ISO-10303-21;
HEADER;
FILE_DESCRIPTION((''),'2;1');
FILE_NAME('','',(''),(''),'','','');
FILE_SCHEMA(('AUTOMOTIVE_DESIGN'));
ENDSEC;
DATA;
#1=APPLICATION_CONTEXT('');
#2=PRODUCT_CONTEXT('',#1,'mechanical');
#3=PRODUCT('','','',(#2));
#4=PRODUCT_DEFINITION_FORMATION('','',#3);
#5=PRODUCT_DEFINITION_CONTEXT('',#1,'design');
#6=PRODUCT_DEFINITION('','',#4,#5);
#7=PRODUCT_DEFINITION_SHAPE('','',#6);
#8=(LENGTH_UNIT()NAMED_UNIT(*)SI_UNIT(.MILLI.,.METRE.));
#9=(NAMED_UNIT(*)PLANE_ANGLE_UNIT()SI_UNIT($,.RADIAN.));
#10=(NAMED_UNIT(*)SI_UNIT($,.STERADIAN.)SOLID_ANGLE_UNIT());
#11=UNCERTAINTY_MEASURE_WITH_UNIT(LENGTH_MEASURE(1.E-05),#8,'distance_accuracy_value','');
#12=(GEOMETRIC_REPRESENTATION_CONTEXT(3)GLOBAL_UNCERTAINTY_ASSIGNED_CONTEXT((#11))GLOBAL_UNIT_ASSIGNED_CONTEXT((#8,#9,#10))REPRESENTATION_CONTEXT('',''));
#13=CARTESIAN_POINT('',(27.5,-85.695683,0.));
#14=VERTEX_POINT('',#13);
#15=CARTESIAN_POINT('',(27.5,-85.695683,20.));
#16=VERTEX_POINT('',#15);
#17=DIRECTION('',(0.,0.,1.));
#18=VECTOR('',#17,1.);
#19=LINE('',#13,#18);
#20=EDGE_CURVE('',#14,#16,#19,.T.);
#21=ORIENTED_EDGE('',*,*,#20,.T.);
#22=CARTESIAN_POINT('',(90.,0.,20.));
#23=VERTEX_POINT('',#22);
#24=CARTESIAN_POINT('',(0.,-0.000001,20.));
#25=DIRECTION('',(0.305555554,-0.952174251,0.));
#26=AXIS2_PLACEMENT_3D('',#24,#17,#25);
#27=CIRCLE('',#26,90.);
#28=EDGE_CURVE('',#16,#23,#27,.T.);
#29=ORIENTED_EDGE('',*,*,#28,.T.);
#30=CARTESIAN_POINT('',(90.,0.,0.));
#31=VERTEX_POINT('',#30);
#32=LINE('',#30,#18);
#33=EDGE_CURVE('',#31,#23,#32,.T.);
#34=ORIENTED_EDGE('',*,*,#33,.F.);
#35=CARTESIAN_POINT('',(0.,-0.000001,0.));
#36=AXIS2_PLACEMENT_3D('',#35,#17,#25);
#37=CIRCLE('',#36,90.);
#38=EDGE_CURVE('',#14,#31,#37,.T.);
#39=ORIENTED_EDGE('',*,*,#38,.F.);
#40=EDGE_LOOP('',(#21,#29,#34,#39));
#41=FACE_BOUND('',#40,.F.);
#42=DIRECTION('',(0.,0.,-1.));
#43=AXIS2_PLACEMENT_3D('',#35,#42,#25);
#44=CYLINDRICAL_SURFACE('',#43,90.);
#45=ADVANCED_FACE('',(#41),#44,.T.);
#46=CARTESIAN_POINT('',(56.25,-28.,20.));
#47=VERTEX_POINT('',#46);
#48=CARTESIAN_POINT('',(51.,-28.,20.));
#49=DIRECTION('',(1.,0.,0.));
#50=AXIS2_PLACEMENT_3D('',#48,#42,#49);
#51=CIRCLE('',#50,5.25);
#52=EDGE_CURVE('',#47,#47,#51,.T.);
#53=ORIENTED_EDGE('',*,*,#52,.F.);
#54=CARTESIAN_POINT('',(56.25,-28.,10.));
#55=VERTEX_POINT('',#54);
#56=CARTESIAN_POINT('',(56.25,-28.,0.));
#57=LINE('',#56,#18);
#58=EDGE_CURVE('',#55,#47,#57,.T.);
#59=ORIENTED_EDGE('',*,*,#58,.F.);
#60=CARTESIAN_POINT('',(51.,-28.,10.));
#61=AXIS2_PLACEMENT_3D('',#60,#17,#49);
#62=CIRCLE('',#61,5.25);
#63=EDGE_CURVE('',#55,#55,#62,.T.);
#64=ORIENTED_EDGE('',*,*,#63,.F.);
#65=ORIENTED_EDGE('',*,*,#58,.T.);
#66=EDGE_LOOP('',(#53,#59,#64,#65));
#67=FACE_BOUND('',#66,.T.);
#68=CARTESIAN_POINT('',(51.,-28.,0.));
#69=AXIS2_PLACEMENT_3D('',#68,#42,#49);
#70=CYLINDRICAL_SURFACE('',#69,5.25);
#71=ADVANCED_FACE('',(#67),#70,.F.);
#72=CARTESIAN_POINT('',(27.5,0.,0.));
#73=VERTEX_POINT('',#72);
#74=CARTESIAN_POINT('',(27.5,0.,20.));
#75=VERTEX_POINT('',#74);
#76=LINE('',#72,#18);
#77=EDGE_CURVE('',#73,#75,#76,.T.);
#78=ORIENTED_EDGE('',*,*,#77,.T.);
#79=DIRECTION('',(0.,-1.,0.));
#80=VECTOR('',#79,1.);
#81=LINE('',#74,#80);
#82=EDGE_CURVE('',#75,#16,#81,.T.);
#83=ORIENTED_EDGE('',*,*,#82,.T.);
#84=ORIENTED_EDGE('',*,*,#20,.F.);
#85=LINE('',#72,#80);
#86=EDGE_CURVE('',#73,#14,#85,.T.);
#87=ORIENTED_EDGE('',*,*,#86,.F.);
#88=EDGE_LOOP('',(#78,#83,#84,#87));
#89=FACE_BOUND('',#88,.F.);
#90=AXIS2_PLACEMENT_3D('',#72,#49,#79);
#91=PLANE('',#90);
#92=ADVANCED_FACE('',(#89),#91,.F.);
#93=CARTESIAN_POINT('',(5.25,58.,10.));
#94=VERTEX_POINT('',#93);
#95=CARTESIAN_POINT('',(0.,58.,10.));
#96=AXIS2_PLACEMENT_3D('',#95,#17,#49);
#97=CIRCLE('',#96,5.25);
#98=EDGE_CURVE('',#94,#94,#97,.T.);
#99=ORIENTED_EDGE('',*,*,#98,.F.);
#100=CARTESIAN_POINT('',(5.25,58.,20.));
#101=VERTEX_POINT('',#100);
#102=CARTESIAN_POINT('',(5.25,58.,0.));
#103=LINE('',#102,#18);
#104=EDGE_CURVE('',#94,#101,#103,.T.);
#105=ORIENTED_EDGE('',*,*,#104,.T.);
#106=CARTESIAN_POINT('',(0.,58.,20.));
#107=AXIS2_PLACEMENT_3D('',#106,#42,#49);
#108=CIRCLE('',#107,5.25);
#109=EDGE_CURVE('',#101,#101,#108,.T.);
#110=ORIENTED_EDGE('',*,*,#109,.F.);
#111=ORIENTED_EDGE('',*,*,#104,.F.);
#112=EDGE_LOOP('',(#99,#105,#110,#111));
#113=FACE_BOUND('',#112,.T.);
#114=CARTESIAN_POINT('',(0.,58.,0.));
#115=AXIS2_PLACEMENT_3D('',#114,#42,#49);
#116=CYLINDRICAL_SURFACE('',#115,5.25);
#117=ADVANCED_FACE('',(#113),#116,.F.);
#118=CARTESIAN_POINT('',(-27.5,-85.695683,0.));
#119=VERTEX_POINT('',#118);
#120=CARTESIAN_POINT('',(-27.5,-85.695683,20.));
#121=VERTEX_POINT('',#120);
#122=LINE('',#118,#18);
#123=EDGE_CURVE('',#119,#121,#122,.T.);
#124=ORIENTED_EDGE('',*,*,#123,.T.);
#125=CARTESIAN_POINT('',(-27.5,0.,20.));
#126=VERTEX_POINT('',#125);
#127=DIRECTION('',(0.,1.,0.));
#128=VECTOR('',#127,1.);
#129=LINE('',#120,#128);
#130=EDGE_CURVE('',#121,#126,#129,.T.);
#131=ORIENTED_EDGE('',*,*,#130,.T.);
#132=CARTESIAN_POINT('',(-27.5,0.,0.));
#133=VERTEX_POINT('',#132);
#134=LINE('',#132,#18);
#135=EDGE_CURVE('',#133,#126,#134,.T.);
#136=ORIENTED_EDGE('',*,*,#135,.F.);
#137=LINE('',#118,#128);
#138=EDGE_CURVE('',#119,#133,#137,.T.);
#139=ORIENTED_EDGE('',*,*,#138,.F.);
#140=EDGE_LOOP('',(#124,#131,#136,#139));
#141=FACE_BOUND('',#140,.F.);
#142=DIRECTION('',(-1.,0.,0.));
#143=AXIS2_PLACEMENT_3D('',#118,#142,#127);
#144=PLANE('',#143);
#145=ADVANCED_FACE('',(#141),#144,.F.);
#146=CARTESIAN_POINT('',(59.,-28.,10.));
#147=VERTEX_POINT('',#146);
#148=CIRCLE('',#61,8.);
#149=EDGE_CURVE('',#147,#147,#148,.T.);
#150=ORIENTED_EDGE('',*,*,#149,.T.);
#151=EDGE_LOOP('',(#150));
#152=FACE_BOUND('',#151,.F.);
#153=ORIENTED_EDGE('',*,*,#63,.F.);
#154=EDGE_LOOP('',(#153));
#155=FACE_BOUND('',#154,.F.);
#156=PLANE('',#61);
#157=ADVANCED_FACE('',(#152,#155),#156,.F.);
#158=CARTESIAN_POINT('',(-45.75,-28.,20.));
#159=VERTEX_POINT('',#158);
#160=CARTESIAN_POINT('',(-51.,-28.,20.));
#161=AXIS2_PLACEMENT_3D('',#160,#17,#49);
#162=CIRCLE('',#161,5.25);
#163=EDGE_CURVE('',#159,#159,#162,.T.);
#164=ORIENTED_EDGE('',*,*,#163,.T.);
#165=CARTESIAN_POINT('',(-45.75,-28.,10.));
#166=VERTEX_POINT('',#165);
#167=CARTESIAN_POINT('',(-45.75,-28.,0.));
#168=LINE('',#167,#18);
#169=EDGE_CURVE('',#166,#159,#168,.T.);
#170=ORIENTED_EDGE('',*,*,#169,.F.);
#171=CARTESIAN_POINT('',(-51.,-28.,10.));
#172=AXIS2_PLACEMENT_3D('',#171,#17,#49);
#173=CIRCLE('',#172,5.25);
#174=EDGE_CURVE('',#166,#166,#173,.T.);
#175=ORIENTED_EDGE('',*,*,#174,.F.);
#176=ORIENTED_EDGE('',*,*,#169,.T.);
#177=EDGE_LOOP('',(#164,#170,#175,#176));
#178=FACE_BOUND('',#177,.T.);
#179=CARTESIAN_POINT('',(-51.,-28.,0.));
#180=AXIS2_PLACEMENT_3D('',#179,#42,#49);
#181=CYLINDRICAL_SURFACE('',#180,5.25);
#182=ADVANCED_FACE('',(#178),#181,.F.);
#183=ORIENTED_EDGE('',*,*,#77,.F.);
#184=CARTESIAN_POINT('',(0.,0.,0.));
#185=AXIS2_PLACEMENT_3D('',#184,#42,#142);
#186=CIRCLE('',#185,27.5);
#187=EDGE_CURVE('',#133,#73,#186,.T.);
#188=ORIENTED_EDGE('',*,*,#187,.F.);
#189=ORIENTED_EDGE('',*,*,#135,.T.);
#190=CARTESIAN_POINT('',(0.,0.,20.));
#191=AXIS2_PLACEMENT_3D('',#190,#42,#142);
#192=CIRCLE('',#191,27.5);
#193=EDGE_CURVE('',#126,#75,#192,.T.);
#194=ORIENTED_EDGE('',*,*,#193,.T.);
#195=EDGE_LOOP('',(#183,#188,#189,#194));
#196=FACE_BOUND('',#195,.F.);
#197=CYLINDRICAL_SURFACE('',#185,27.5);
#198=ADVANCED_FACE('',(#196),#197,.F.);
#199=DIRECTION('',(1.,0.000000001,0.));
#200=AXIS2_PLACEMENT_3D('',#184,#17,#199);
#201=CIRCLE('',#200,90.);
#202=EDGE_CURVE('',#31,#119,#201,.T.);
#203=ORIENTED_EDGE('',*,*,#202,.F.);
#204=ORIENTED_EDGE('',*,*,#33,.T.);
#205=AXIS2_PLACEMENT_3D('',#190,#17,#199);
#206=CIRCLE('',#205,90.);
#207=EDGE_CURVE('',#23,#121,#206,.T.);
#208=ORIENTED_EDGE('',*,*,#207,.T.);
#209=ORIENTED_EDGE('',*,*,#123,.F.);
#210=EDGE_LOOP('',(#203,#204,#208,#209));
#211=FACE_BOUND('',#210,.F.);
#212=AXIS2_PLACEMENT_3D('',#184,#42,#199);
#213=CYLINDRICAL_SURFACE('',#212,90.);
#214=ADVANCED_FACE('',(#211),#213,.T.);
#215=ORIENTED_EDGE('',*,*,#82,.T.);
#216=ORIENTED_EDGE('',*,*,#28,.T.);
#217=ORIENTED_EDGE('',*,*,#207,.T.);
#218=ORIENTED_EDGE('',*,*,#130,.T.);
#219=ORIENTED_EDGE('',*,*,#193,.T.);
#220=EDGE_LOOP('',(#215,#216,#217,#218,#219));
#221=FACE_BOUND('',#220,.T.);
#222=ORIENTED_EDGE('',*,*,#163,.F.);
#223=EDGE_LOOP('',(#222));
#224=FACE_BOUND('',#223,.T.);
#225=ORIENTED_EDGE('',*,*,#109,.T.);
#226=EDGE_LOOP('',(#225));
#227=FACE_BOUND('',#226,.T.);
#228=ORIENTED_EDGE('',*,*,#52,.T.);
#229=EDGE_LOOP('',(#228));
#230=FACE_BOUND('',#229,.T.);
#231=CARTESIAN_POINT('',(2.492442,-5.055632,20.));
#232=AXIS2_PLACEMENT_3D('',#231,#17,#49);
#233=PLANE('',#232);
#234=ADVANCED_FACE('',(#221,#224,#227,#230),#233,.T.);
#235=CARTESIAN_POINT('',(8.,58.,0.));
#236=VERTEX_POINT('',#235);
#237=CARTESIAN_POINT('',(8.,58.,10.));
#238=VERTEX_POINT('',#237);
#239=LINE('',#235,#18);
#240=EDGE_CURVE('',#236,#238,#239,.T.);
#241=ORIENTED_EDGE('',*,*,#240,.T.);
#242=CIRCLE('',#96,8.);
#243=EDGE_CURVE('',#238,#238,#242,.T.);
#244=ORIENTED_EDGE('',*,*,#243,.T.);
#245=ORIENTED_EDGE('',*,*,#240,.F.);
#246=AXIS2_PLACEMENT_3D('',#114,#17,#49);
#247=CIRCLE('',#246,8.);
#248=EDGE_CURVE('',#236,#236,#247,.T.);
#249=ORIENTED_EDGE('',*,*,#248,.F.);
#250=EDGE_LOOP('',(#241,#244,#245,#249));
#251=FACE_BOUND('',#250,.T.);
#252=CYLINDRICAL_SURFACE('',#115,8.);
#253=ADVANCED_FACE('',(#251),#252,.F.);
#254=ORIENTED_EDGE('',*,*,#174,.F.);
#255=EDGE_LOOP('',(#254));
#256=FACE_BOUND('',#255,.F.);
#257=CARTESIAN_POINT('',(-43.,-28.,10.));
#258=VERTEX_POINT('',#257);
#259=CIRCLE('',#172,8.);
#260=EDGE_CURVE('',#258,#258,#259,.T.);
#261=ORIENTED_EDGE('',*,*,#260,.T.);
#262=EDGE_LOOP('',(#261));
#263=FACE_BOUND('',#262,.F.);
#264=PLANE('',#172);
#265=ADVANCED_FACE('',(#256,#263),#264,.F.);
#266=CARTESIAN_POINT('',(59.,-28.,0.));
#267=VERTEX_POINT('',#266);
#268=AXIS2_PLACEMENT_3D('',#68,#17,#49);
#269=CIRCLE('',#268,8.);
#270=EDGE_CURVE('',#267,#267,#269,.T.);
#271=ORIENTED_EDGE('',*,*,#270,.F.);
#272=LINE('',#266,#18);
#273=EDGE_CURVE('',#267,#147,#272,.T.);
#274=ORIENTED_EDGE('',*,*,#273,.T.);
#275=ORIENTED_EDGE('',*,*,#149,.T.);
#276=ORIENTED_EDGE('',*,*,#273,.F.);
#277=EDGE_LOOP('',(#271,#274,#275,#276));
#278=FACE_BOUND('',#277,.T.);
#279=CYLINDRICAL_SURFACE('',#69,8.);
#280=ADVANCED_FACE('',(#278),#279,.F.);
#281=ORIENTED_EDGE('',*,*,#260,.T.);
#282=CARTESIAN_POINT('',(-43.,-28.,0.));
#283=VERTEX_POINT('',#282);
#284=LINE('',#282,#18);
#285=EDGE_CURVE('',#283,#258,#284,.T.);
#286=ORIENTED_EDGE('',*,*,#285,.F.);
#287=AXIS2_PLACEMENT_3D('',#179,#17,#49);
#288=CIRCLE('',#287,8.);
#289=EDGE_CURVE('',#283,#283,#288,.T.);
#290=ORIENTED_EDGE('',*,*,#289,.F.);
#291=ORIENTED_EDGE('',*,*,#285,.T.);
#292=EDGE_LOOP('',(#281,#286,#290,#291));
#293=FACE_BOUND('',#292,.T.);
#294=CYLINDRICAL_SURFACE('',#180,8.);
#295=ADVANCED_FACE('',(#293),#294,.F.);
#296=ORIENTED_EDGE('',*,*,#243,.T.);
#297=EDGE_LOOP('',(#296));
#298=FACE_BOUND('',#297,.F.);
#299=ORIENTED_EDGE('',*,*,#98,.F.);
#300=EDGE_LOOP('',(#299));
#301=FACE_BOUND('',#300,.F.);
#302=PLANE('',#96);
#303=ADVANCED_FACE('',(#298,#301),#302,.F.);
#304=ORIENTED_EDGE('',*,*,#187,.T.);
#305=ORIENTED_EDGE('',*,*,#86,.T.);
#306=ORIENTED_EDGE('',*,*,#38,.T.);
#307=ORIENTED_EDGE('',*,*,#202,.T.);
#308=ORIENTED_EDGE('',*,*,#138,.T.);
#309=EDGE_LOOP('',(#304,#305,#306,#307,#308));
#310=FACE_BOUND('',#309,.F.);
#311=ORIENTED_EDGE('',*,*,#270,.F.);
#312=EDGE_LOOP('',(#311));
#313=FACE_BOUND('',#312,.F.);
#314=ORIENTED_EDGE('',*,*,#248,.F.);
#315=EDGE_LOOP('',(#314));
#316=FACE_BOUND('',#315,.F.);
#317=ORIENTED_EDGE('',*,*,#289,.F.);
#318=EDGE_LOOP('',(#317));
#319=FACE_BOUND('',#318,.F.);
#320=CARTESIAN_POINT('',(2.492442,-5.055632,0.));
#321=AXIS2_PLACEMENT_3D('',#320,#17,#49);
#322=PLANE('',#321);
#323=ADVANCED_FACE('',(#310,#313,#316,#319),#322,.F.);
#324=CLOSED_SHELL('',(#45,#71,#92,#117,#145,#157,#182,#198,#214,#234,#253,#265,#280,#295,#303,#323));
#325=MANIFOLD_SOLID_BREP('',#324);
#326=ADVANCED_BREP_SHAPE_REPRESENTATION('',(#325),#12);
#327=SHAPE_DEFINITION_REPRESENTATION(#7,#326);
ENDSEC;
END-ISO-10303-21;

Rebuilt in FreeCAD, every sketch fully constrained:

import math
import FreeCAD as App
import Part
import Sketcher
from FreeCAD import Vector

doc = App.newDocument("Part")
body = doc.addObject("PartDesign::Body", "Body")

sketch1 = body.newObject("Sketcher::SketchObject", "Sketch")
sketch1.AttachmentSupport = (doc.getObject("XY_Plane"), [""])
sketch1.MapMode = "FlatFace"
sketch1.addGeometry([
    Part.ArcOfCircle(Part.Circle(Vector(0, -0.000001, 0), Vector(0, 0, 1), 90), math.radians(-72.20841), math.radians(0)),
    Part.ArcOfCircle(Part.Circle(Vector(0, 0, 0), Vector(0, 0, 1), 90), math.radians(0), math.radians(252.20841)),
    Part.LineSegment(Vector(-27.5, -85.695683, 0), Vector(-27.5, 0, 0)),
    Part.ArcOfCircle(Part.Circle(Vector(0, 0, 0), Vector(0, 0, 1), 27.5), math.radians(0), math.radians(180)),
    Part.LineSegment(Vector(27.5, 0, 0), Vector(27.5, -85.695683, 0)),
    Part.Circle(Vector(-51, -28, 0), Vector(0, 0, 1), 5.25),
], False)
sketch1.addConstraint([
    Sketcher.Constraint("Tangent", 0, 2, 1, 1),
    Sketcher.Constraint("Coincident", 1, 2, 2, 1),
    Sketcher.Constraint("Tangent", 2, 2, 3, 2),
    Sketcher.Constraint("Tangent", 3, 1, 4, 1),
    Sketcher.Constraint("Coincident", 4, 2, 0, 1),
    Sketcher.Constraint("Vertical", 2),
    Sketcher.Constraint("Vertical", 4),
    Sketcher.Constraint("Coincident", 0, 3, -1, 1),
    Sketcher.Constraint("Coincident", 3, 3, -1, 1),
    Sketcher.Constraint("Equal", 0, 1),
    Sketcher.Constraint("PointOnObject", 0, 2, -1),
    Sketcher.Constraint("Radius", 0, 90.0),
    Sketcher.Constraint("Diameter", 5, 10.5),
    Sketcher.Constraint("Radius", 3, 27.5),
    Sketcher.Constraint("DistanceX", 5, 3, -1, 1, 51.0),
    Sketcher.Constraint("DistanceY", 5, 3, -1, 1, 28.0),
])
pad1 = body.newObject("PartDesign::Pad", "Pad")
pad1.Profile = sketch1
pad1.Length = 20

sketch2 = body.newObject("Sketcher::SketchObject", "Sketch001")
sketch2.AttachmentSupport = (doc.getObject("XY_Plane"), [""])
sketch2.MapMode = "FlatFace"
sketch2.addGeometry([
    Part.Circle(Vector(0, 58, 0), Vector(0, 0, 1), 5.25),
    Part.Circle(Vector(-51, -28, 0), Vector(0, 0, 1), 5.25),
    Part.Circle(Vector(51, -28, 0), Vector(0, 0, 1), 5.25),
], False)
sketch2.addConstraint([
    Sketcher.Constraint("Equal", 0, 1),
    Sketcher.Constraint("Equal", 1, 2),
    Sketcher.Constraint("Symmetric", 1, 3, 2, 3, -2),
    Sketcher.Constraint("PointOnObject", 0, 3, -2),
    Sketcher.Constraint("Diameter", 0, 10.5),
    Sketcher.Constraint("DistanceY", -1, 1, 0, 3, 58.0),
    Sketcher.Constraint("DistanceX", 1, 3, -1, 1, 51.0),
    Sketcher.Constraint("DistanceY", 1, 3, -1, 1, 28.0),
])
pocket1 = body.newObject("PartDesign::Pocket", "Pocket")
pocket1.Profile = sketch2
pocket1.Type = "ThroughAll"
pocket1.Reversed = True

sketch3 = body.newObject("Sketcher::SketchObject", "Sketch002")
sketch3.AttachmentSupport = (doc.getObject("XY_Plane"), [""])
sketch3.MapMode = "FlatFace"
sketch3.addGeometry([
    Part.Circle(Vector(0, 58, 0), Vector(0, 0, 1), 8),
    Part.Circle(Vector(0, 58, 0), Vector(0, 0, 1), 5.25),
    Part.Circle(Vector(51, -28, 0), Vector(0, 0, 1), 8),
    Part.Circle(Vector(51, -28, 0), Vector(0, 0, 1), 5.25),
    Part.Circle(Vector(-51, -28, 0), Vector(0, 0, 1), 8),
    Part.Circle(Vector(-51, -28, 0), Vector(0, 0, 1), 5.25),
], False)
sketch3.addConstraint([
    Sketcher.Constraint("Coincident", 1, 3, 0, 3),
    Sketcher.Constraint("Coincident", 3, 3, 2, 3),
    Sketcher.Constraint("Coincident", 5, 3, 4, 3),
    Sketcher.Constraint("Equal", 0, 2),
    Sketcher.Constraint("Equal", 1, 3),
    Sketcher.Constraint("Equal", 2, 4),
    Sketcher.Constraint("Equal", 3, 5),
    Sketcher.Constraint("Symmetric", 2, 3, 4, 3, -2),
    Sketcher.Constraint("PointOnObject", 0, 3, -2),
    Sketcher.Constraint("Diameter", 0, 16.0),
    Sketcher.Constraint("Diameter", 1, 10.5),
    Sketcher.Constraint("DistanceY", -1, 1, 0, 3, 58.0),
    Sketcher.Constraint("DistanceX", -1, 1, 2, 3, 51.0),
    Sketcher.Constraint("DistanceY", 2, 3, -1, 1, 28.0),
])
pocket2 = body.newObject("PartDesign::Pocket", "Pocket001")
pocket2.Profile = sketch3
pocket2.Length = 10
pocket2.Reversed = True

doc.recompute()
